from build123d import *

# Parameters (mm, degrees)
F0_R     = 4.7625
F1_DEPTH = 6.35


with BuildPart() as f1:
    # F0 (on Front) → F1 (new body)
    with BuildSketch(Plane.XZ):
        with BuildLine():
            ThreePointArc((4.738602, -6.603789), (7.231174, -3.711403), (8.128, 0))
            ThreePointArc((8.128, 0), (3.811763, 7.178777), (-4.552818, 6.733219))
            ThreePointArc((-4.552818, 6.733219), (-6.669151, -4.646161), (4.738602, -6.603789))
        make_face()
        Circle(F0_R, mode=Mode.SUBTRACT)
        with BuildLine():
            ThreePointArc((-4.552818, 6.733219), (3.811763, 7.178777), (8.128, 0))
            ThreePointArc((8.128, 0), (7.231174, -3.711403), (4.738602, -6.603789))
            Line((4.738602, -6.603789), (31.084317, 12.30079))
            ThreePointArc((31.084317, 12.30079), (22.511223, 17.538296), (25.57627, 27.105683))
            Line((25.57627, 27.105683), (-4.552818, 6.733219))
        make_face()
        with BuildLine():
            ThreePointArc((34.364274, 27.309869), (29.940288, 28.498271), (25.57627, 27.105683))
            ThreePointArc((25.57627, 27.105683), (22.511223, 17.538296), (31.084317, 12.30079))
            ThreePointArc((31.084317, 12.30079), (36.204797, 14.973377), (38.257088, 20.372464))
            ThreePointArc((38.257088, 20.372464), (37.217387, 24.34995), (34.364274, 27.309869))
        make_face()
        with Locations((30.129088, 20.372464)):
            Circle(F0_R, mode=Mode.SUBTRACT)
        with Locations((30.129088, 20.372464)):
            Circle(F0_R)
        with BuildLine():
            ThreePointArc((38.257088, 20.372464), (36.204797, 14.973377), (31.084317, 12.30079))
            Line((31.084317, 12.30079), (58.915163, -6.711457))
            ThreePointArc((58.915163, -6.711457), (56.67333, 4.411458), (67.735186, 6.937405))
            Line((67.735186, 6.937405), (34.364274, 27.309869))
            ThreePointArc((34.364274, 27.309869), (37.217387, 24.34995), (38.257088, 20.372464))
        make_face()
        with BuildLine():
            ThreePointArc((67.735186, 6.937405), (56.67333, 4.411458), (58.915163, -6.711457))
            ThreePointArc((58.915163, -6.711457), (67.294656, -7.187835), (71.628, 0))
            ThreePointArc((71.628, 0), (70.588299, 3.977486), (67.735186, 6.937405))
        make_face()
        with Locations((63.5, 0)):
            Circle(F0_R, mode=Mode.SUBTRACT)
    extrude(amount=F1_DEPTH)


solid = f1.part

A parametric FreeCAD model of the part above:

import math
import FreeCAD as App
import Part
import Sketcher
Q = App.Units.Quantity

doc = App.newDocument("Part")
body = doc.addObject("PartDesign::Body", "Body")

# Sketch on XZ plane
sketch1 = body.newObject("Sketcher::SketchObject", "Sketch")
sketch1.AttachmentSupport = (doc.getObject("XZ_Plane"), [""])
sketch1.MapMode = "FlatFace"
sketch1.addGeometry([
    Part.ArcOfCircle(Part.Circle(App.Vector(0, 0, 0), App.Vector(0, 0, 1), 8.1), math.radians(124), math.radians(306)),  # 0
    Part.LineSegment(App.Vector(4.7, -6.6, 0), App.Vector(31.1, 12.3, 0)),  # 1
    Part.LineSegment(App.Vector(31.1, 12.3, 0), App.Vector(58.9, -6.7, 0)),  # 2
    Part.ArcOfCircle(Part.Circle(App.Vector(63.5, 0, 0), App.Vector(0, 0, 1), 8.1), math.radians(-124), math.radians(0)),  # 3
    Part.ArcOfCircle(Part.Circle(App.Vector(63.5, 0, 0), App.Vector(0, 0, 1), 8.1), math.radians(0), math.radians(59)),  # 4
    Part.LineSegment(App.Vector(67.7, 6.9, 0), App.Vector(34.4, 27.3, 0)),  # 5
    Part.ArcOfCircle(Part.Circle(App.Vector(30.1, 20.4, 0), App.Vector(0, 0, 1), 8.1), math.radians(59), math.radians(124)),  # 6
    Part.LineSegment(App.Vector(25.6, 27.1, 0), App.Vector(-4.6, 6.7, 0)),  # 7
    Part.Circle(App.Vector(0, 0, 0), App.Vector(0, 0, 1), 4.8),  # 8
    Part.Circle(App.Vector(63.5, 0, 0), App.Vector(0, 0, 1), 4.8),  # 9
], False)
sketch1.addConstraint([
    Sketcher.Constraint("Tangent", 0, 2, 1, 1),
    Sketcher.Constraint("Coincident", 1, 2, 2, 1),
    Sketcher.Constraint("Tangent", 2, 2, 3, 1),
    Sketcher.Constraint("Tangent", 3, 2, 4, 1),
    Sketcher.Constraint("Tangent", 4, 2, 5, 1),
    Sketcher.Constraint("Tangent", 5, 2, 6, 1),
    Sketcher.Constraint("Tangent", 6, 2, 7, 1),
    Sketcher.Constraint("Tangent", 7, 2, 0, 1),
    Sketcher.Constraint("Coincident", 0, 3, -1, 1),
    Sketcher.Constraint("Coincident", 8, 3, -1, 1),
    Sketcher.Constraint("Coincident", 9, 3, 3, 3),
    Sketcher.Constraint("Equal", 0, 3),
    Sketcher.Constraint("Equal", 3, 6),
    Sketcher.Constraint("Equal", 8, 9),
    Sketcher.Constraint("PointOnObject", 3, 3, -1),
    Sketcher.Constraint("PointOnObject", 3, 2, -1),
    Sketcher.Constraint("Radius", 0, Q("0.32 in")),
    Sketcher.Constraint("Radius", 4, Q("0.3200001 in")),
    Sketcher.Constraint("Diameter", 8, Q("0.375 in")),
    Sketcher.Constraint("DistanceX", -1, 1, 3, 3, Q("2.5 in")),
    Sketcher.Constraint("Distance", 1, Q("32.426529 mm")),
    Sketcher.Constraint("Distance", 2, Q("33.704918 mm")),
    Sketcher.Constraint("Distance", 5, Q("39.098019 mm")),
    Sketcher.Constraint("DistanceY", -1, 1, 5, 2, Q("27.309869 mm")),
])
pad1 = body.newObject("PartDesign::Pad", "Pad")
pad1.Profile = sketch1
pad1.Length = Q("0.25 in")

doc.recompute()
